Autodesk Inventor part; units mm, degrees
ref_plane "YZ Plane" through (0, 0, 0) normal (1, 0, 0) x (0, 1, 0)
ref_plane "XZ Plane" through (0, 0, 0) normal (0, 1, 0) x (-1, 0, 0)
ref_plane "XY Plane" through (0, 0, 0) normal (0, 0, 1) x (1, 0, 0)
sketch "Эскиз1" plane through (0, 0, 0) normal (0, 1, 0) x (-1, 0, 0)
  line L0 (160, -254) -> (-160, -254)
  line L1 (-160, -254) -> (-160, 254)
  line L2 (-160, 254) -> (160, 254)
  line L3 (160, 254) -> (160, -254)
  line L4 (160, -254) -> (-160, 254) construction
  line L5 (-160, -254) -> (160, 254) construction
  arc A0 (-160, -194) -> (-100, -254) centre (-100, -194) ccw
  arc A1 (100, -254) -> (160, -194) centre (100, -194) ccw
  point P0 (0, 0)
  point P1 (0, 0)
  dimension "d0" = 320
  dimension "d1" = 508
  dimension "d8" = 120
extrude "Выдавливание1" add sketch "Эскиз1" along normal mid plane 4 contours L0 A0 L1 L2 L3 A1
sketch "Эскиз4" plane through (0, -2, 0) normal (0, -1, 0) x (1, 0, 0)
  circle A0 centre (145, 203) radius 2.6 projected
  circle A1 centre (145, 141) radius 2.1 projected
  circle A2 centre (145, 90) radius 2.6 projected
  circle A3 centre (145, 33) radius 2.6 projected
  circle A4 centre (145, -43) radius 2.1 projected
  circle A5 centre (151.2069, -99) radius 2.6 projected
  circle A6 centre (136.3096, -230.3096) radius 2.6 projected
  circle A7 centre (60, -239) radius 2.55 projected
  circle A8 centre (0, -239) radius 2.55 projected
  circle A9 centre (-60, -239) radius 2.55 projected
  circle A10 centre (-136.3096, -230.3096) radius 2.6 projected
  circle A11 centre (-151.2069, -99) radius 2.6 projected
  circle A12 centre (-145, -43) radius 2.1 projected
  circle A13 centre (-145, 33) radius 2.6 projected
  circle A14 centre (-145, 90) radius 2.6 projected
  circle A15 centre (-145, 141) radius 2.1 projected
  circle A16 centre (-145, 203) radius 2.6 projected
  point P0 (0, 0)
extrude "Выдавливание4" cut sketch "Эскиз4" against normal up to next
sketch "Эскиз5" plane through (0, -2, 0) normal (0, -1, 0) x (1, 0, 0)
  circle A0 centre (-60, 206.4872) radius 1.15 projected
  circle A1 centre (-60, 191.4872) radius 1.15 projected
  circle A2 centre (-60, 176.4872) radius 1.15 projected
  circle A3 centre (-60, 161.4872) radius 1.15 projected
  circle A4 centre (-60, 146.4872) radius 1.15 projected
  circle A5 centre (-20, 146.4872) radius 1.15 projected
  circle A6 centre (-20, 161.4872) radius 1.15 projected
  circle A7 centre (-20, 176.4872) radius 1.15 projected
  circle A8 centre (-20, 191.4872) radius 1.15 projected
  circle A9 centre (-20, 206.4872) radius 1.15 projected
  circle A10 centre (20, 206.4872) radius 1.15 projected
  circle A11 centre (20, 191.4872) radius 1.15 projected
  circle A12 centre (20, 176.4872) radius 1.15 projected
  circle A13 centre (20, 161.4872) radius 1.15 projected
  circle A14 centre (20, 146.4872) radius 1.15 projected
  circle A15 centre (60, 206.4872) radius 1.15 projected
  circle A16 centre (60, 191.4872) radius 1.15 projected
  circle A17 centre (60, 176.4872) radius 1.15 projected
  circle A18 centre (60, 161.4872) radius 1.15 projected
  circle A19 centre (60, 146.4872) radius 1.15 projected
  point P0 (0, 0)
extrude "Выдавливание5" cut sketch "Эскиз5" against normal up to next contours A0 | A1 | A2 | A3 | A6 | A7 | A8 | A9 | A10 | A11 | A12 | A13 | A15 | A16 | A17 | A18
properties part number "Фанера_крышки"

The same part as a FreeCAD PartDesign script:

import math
import FreeCAD as App
import Part
import Sketcher
from FreeCAD import Vector

doc = App.newDocument("Part")
body = doc.addObject("PartDesign::Body", "Body")

sketch1 = body.newObject("Sketcher::SketchObject", "Sketch")
sketch1.AttachmentSupport = (doc.getObject("XZ_Plane"), [""])
sketch1.MapMode = "FlatFace"
sketch1.addGeometry(Part.LineSegment(Vector(100, -254, 0), Vector(-100, -254, 0)), False)
sketch1.addGeometry(Part.ArcOfCircle(Part.Circle(Vector(-100, -194, 0), Vector(0, 0, 1), 60), math.radians(180), math.radians(270)), False)
sketch1.addGeometry(Part.LineSegment(Vector(-160, -194, 0), Vector(-160, 254, 0)), False)
sketch1.addGeometry(Part.LineSegment(Vector(-160, 254, 0), Vector(160, 254, 0)), False)
sketch1.addGeometry(Part.LineSegment(Vector(160, 254, 0), Vector(160, -194, 0)), False)
sketch1.addGeometry(Part.ArcOfCircle(Part.Circle(Vector(100, -194, 0), Vector(0, 0, 1), 60), math.radians(-90), math.radians(0)), False)
sketch1.addConstraint(Sketcher.Constraint("Tangent", 0, 2, 1, 2))
sketch1.addConstraint(Sketcher.Constraint("Tangent", 1, 1, 2, 1))
sketch1.addConstraint(Sketcher.Constraint("Coincident", 2, 2, 3, 1))
sketch1.addConstraint(Sketcher.Constraint("Coincident", 3, 2, 4, 1))
sketch1.addConstraint(Sketcher.Constraint("Tangent", 4, 2, 5, 2))
sketch1.addConstraint(Sketcher.Constraint("Tangent", 5, 1, 0, 1))
sketch1.addConstraint(Sketcher.Constraint("Horizontal", 0))
sketch1.addConstraint(Sketcher.Constraint("Vertical", 2))
sketch1.addConstraint(Sketcher.Constraint("Horizontal", 3))
sketch1.addConstraint(Sketcher.Constraint("Vertical", 4))
sketch1.addConstraint(Sketcher.Constraint("Equal", 1, 5))
sketch1.addConstraint(Sketcher.Constraint("Radius", 1, 60.0))
sketch1.addConstraint(Sketcher.Constraint("DistanceX", 3, 1, 3, 2, 320.0))
sketch1.addConstraint(Sketcher.Constraint("DistanceY", 0, 2, 2, 2, 508.0))
sketch1.addConstraint(Sketcher.Constraint("DistanceX", 1, 3, -1, 1, 100.0))
sketch1.addConstraint(Sketcher.Constraint("DistanceY", 1, 3, -1, 1, 194.0))
pad1 = body.newObject("PartDesign::Pad", "Pad")
pad1.Profile = sketch1
pad1.Length = 4
pad1.Midplane = True

sketch2 = body.newObject("Sketcher::SketchObject", "Sketch001")
sketch2.AttachmentSupport = (doc.getObject("XZ_Plane"), [""])
sketch2.MapMode = "FlatFace"
sketch2.AttachmentOffset = App.Placement(Vector(0, 0, 2), App.Rotation())
sketch2.addGeometry(Part.Circle(Vector(145, 203, 0), Vector(0, 0, 1), 2.6), False)
sketch2.addGeometry(Part.Circle(Vector(145, 141, 0), Vector(0, 0, 1), 2.1), False)
sketch2.addGeometry(Part.Circle(Vector(145, 90, 0), Vector(0, 0, 1), 2.6), False)
sketch2.addGeometry(Part.Circle(Vector(145, 33, 0), Vector(0, 0, 1), 2.6), False)
sketch2.addGeometry(Part.Circle(Vector(145, -43, 0), Vector(0, 0, 1), 2.1), False)
sketch2.addGeometry(Part.Circle(Vector(151.2, -99, 0), Vector(0, 0, 1), 2.6), False)
sketch2.addGeometry(Part.Circle(Vector(136.3, -230.3, 0), Vector(0, 0, 1), 2.6), False)
sketch2.addGeometry(Part.Circle(Vector(60, -239, 0), Vector(0, 0, 1), 2.5), False)
sketch2.addGeometry(Part.Circle(Vector(0, -239, 0), Vector(0, 0, 1), 2.5), False)
sketch2.addGeometry(Part.Circle(Vector(-60, -239, 0), Vector(0, 0, 1), 2.5), False)
sketch2.addGeometry(Part.Circle(Vector(-136.3, -230.3, 0), Vector(0, 0, 1), 2.6), False)
sketch2.addGeometry(Part.Circle(Vector(-151.2, -99, 0), Vector(0, 0, 1), 2.6), False)
sketch2.addGeometry(Part.Circle(Vector(-145, -43, 0), Vector(0, 0, 1), 2.1), False)
sketch2.addGeometry(Part.Circle(Vector(-145, 33, 0), Vector(0, 0, 1), 2.6), False)
sketch2.addGeometry(Part.Circle(Vector(-145, 90, 0), Vector(0, 0, 1), 2.6), False)
sketch2.addGeometry(Part.Circle(Vector(-145, 141, 0), Vector(0, 0, 1), 2.1), False)
sketch2.addGeometry(Part.Circle(Vector(-145, 203, 0), Vector(0, 0, 1), 2.6), False)
sketch2.addConstraint(Sketcher.Constraint("Equal", 0, 2))
sketch2.addConstraint(Sketcher.Constraint("Equal", 2, 3))
sketch2.addConstraint(Sketcher.Constraint("Equal", 1, 4))
sketch2.addConstraint(Sketcher.Constraint("Equal", 3, 5))
sketch2.addConstraint(Sketcher.Constraint("Equal", 5, 6))
sketch2.addConstraint(Sketcher.Constraint("Equal", 7, 8))
sketch2.addConstraint(Sketcher.Constraint("Equal", 8, 9))
sketch2.addConstraint(Sketcher.Constraint("Equal", 6, 10))
sketch2.addConstraint(Sketcher.Constraint("Equal", 10, 11))
sketch2.addConstraint(Sketcher.Constraint("Equal", 4, 12))
sketch2.addConstraint(Sketcher.Constraint("Equal", 11, 13))
sketch2.addConstraint(Sketcher.Constraint("Equal", 13, 14))
sketch2.addConstraint(Sketcher.Constraint("Equal", 12, 15))
sketch2.addConstraint(Sketcher.Constraint("Equal", 14, 16))
sketch2.addConstraint(Sketcher.Constraint("Symmetric", 7, 3, 9, 3, -2))
sketch2.addConstraint(Sketcher.Constraint("Symmetric", 6, 3, 10, 3, -2))
sketch2.addConstraint(Sketcher.Constraint("Symmetric", 5, 3, 11, 3, -2))
sketch2.addConstraint(Sketcher.Constraint("Symmetric", 4, 3, 12, 3, -2))
sketch2.addConstraint(Sketcher.Constraint("Symmetric", 3, 3, 13, 3, -2))
sketch2.addConstraint(Sketcher.Constraint("Symmetric", 2, 3, 14, 3, -2))
sketch2.addConstraint(Sketcher.Constraint("Symmetric", 1, 3, 15, 3, -2))
sketch2.addConstraint(Sketcher.Constraint("Symmetric", 0, 3, 16, 3, -2))
sketch2.addConstraint(Sketcher.Constraint("PointOnObject", 8, 3, -2))
sketch2.addConstraint(Sketcher.Constraint("Horizontal", 7, 3, 8, 3))
sketch2.addConstraint(Sketcher.Constraint("Vertical", 0, 3, 1, 3))
sketch2.addConstraint(Sketcher.Constraint("Vertical", 1, 3, 2, 3))
sketch2.addConstraint(Sketcher.Constraint("Vertical", 2, 3, 3, 3))
sketch2.addConstraint(Sketcher.Constraint("Vertical", 3, 3, 4, 3))
sketch2.addConstraint(Sketcher.Constraint("Diameter", 0, 5.2))
sketch2.addConstraint(Sketcher.Constraint("Diameter", 1, 4.2))
sketch2.addConstraint(Sketcher.Constraint("Diameter", 7, 5.1))
sketch2.addConstraint(Sketcher.Constraint("DistanceX", -1, 1, 0, 3, 145.0))
sketch2.addConstraint(Sketcher.Constraint("DistanceY", -1, 1, 0, 3, 203.0))
sketch2.addConstraint(Sketcher.Constraint("DistanceY", -1, 1, 1, 3, 141.0))
sketch2.addConstraint(Sketcher.Constraint("DistanceY", -1, 1, 2, 3, 90.0))
sketch2.addConstraint(Sketcher.Constraint("DistanceY", -1, 1, 3, 3, 33.0))
sketch2.addConstraint(Sketcher.Constraint("DistanceY", 4, 3, -1, 1, 43.0))
sketch2.addConstraint(Sketcher.Constraint("DistanceY", 5, 3, -1, 1, 99.0))
sketch2.addConstraint(Sketcher.Constraint("DistanceX", -1, 1, 7, 3, 60.0))
sketch2.addConstraint(Sketcher.Constraint("DistanceY", 7, 3, -1, 1, 239.0))
sketch2.addConstraint(Sketcher.Constraint("DistanceX", -1, 1, 5, 3, 151.207))
sketch2.addConstraint(Sketcher.Constraint("DistanceX", -1, 1, 6, 3, 136.3096))
sketch2.addConstraint(Sketcher.Constraint("DistanceY", 6, 3, -1, 1, 230.3096))
pocket1 = body.newObject("PartDesign::Pocket", "Pocket")
pocket1.Profile = sketch2
pocket1.Length = 4

sketch3 = body.newObject("Sketcher::SketchObject", "Sketch002")
sketch3.AttachmentSupport = (doc.getObject("XZ_Plane"), [""])
sketch3.MapMode = "FlatFace"
sketch3.AttachmentOffset = App.Placement(Vector(0, 0, 2), App.Rotation())
sketch3.addGeometry(Part.Circle(Vector(-60, 206.5, 0), Vector(0, 0, 1), 1.1), False)
sketch3.addGeometry(Part.Circle(Vector(-60, 191.5, 0), Vector(0, 0, 1), 1.1), False)
sketch3.addGeometry(Part.Circle(Vector(-60, 176.5, 0), Vector(0, 0, 1), 1.1), False)
sketch3.addGeometry(Part.Circle(Vector(-60, 161.5, 0), Vector(0, 0, 1), 1.1), False)
sketch3.addGeometry(Part.Circle(Vector(-20, 161.5, 0), Vector(0, 0, 1), 1.1), False)
sketch3.addGeometry(Part.Circle(Vector(-20, 176.5, 0), Vector(0, 0, 1), 1.1), False)
sketch3.addGeometry(Part.Circle(Vector(-20, 191.5, 0), Vector(0, 0, 1), 1.1), False)
sketch3.addGeometry(Part.Circle(Vector(-20, 206.5, 0), Vector(0, 0, 1), 1.1), False)
sketch3.addGeometry(Part.Circle(Vector(20, 206.5, 0), Vector(0, 0, 1), 1.1), False)
sketch3.addGeometry(Part.Circle(Vector(20, 191.5, 0), Vector(0, 0, 1), 1.1), False)
sketch3.addGeometry(Part.Circle(Vector(20, 176.5, 0), Vector(0, 0, 1), 1.1), False)
sketch3.addGeometry(Part.Circle(Vector(20, 161.5, 0), Vector(0, 0, 1), 1.1), False)
sketch3.addGeometry(Part.Circle(Vector(60, 206.5, 0), Vector(0, 0, 1), 1.1), False)
sketch3.addGeometry(Part.Circle(Vector(60, 191.5, 0), Vector(0, 0, 1), 1.1), False)
sketch3.addGeometry(Part.Circle(Vector(60, 176.5, 0), Vector(0, 0, 1), 1.1), False)
sketch3.addGeometry(Part.Circle(Vector(60, 161.5, 0), Vector(0, 0, 1), 1.1), False)
sketch3.addConstraint(Sketcher.Constraint("Equal", 0, 1))
sketch3.addConstraint(Sketcher.Constraint("Equal", 1, 2))
sketch3.addConstraint(Sketcher.Constraint("Equal", 2, 3))
sketch3.addConstraint(Sketcher.Constraint("Equal", 3, 4))
sketch3.addConstraint(Sketcher.Constraint("Equal", 4, 5))
sketch3.addConstraint(Sketcher.Constraint("Equal", 5, 6))
sketch3.addConstraint(Sketcher.Constraint("Equal", 6, 7))
sketch3.addConstraint(Sketcher.Constraint("Equal", 7, 8))
sketch3.addConstraint(Sketcher.Constraint("Equal", 8, 9))
sketch3.addConstraint(Sketcher.Constraint("Equal", 9, 10))
sketch3.addConstraint(Sketcher.Constraint("Equal", 10, 11))
sketch3.addConstraint(Sketcher.Constraint("Equal", 11, 12))
sketch3.addConstraint(Sketcher.Constraint("Equal", 12, 13))
sketch3.addConstraint(Sketcher.Constraint("Equal", 13, 14))
sketch3.addConstraint(Sketcher.Constraint("Equal", 14, 15))
sketch3.addConstraint(Sketcher.Constraint("Symmetric", 7, 3, 8, 3, -2))
sketch3.addConstraint(Sketcher.Constraint("Symmetric", 6, 3, 9, 3, -2))
sketch3.addConstraint(Sketcher.Constraint("Symmetric", 5, 3, 10, 3, -2))
sketch3.addConstraint(Sketcher.Constraint("Symmetric", 4, 3, 11, 3, -2))
sketch3.addConstraint(Sketcher.Constraint("Symmetric", 0, 3, 12, 3, -2))
sketch3.addConstraint(Sketcher.Constraint("Symmetric", 1, 3, 13, 3, -2))
sketch3.addConstraint(Sketcher.Constraint("Symmetric", 2, 3, 14, 3, -2))
sketch3.addConstraint(Sketcher.Constraint("Symmetric", 3, 3, 15, 3, -2))
sketch3.addConstraint(Sketcher.Constraint("Horizontal", 3, 3, 4, 3))
sketch3.addConstraint(Sketcher.Constraint("Horizontal", 2, 3, 5, 3))
sketch3.addConstraint(Sketcher.Constraint("Horizontal", 1, 3, 6, 3))
sketch3.addConstraint(Sketcher.Constraint("Horizontal", 0, 3, 7, 3))
sketch3.addConstraint(Sketcher.Constraint("Vertical", 0, 3, 1, 3))
sketch3.addConstraint(Sketcher.Constraint("Vertical", 1, 3, 2, 3))
sketch3.addConstraint(Sketcher.Constraint("Vertical", 2, 3, 3, 3))
sketch3.addConstraint(Sketcher.Constraint("Vertical", 4, 3, 5, 3))
sketch3.addConstraint(Sketcher.Constraint("Vertical", 5, 3, 6, 3))
sketch3.addConstraint(Sketcher.Constraint("Vertical", 6, 3, 7, 3))
sketch3.addConstraint(Sketcher.Constraint("Diameter", 0, 2.3))
sketch3.addConstraint(Sketcher.Constraint("DistanceX", 0, 3, -1, 1, 60.0))
sketch3.addConstraint(Sketcher.Constraint("DistanceX", 4, 3, -1, 1, 20.0))
sketch3.addConstraint(Sketcher.Constraint("DistanceY", 1, 3, 0, 3, 15.0))
sketch3.addConstraint(Sketcher.Constraint("DistanceY", 2, 3, 1, 3, 15.0))
sketch3.addConstraint(Sketcher.Constraint("DistanceY", 3, 3, 2, 3, 15.0))
sketch3.addConstraint(Sketcher.Constraint("DistanceY", -1, 1, 0, 3, 206.4872))
pocket2 = body.newObject("PartDesign::Pocket", "Pocket001")
pocket2.Profile = sketch3
pocket2.Type = "UpToFirst"

doc.recompute()
